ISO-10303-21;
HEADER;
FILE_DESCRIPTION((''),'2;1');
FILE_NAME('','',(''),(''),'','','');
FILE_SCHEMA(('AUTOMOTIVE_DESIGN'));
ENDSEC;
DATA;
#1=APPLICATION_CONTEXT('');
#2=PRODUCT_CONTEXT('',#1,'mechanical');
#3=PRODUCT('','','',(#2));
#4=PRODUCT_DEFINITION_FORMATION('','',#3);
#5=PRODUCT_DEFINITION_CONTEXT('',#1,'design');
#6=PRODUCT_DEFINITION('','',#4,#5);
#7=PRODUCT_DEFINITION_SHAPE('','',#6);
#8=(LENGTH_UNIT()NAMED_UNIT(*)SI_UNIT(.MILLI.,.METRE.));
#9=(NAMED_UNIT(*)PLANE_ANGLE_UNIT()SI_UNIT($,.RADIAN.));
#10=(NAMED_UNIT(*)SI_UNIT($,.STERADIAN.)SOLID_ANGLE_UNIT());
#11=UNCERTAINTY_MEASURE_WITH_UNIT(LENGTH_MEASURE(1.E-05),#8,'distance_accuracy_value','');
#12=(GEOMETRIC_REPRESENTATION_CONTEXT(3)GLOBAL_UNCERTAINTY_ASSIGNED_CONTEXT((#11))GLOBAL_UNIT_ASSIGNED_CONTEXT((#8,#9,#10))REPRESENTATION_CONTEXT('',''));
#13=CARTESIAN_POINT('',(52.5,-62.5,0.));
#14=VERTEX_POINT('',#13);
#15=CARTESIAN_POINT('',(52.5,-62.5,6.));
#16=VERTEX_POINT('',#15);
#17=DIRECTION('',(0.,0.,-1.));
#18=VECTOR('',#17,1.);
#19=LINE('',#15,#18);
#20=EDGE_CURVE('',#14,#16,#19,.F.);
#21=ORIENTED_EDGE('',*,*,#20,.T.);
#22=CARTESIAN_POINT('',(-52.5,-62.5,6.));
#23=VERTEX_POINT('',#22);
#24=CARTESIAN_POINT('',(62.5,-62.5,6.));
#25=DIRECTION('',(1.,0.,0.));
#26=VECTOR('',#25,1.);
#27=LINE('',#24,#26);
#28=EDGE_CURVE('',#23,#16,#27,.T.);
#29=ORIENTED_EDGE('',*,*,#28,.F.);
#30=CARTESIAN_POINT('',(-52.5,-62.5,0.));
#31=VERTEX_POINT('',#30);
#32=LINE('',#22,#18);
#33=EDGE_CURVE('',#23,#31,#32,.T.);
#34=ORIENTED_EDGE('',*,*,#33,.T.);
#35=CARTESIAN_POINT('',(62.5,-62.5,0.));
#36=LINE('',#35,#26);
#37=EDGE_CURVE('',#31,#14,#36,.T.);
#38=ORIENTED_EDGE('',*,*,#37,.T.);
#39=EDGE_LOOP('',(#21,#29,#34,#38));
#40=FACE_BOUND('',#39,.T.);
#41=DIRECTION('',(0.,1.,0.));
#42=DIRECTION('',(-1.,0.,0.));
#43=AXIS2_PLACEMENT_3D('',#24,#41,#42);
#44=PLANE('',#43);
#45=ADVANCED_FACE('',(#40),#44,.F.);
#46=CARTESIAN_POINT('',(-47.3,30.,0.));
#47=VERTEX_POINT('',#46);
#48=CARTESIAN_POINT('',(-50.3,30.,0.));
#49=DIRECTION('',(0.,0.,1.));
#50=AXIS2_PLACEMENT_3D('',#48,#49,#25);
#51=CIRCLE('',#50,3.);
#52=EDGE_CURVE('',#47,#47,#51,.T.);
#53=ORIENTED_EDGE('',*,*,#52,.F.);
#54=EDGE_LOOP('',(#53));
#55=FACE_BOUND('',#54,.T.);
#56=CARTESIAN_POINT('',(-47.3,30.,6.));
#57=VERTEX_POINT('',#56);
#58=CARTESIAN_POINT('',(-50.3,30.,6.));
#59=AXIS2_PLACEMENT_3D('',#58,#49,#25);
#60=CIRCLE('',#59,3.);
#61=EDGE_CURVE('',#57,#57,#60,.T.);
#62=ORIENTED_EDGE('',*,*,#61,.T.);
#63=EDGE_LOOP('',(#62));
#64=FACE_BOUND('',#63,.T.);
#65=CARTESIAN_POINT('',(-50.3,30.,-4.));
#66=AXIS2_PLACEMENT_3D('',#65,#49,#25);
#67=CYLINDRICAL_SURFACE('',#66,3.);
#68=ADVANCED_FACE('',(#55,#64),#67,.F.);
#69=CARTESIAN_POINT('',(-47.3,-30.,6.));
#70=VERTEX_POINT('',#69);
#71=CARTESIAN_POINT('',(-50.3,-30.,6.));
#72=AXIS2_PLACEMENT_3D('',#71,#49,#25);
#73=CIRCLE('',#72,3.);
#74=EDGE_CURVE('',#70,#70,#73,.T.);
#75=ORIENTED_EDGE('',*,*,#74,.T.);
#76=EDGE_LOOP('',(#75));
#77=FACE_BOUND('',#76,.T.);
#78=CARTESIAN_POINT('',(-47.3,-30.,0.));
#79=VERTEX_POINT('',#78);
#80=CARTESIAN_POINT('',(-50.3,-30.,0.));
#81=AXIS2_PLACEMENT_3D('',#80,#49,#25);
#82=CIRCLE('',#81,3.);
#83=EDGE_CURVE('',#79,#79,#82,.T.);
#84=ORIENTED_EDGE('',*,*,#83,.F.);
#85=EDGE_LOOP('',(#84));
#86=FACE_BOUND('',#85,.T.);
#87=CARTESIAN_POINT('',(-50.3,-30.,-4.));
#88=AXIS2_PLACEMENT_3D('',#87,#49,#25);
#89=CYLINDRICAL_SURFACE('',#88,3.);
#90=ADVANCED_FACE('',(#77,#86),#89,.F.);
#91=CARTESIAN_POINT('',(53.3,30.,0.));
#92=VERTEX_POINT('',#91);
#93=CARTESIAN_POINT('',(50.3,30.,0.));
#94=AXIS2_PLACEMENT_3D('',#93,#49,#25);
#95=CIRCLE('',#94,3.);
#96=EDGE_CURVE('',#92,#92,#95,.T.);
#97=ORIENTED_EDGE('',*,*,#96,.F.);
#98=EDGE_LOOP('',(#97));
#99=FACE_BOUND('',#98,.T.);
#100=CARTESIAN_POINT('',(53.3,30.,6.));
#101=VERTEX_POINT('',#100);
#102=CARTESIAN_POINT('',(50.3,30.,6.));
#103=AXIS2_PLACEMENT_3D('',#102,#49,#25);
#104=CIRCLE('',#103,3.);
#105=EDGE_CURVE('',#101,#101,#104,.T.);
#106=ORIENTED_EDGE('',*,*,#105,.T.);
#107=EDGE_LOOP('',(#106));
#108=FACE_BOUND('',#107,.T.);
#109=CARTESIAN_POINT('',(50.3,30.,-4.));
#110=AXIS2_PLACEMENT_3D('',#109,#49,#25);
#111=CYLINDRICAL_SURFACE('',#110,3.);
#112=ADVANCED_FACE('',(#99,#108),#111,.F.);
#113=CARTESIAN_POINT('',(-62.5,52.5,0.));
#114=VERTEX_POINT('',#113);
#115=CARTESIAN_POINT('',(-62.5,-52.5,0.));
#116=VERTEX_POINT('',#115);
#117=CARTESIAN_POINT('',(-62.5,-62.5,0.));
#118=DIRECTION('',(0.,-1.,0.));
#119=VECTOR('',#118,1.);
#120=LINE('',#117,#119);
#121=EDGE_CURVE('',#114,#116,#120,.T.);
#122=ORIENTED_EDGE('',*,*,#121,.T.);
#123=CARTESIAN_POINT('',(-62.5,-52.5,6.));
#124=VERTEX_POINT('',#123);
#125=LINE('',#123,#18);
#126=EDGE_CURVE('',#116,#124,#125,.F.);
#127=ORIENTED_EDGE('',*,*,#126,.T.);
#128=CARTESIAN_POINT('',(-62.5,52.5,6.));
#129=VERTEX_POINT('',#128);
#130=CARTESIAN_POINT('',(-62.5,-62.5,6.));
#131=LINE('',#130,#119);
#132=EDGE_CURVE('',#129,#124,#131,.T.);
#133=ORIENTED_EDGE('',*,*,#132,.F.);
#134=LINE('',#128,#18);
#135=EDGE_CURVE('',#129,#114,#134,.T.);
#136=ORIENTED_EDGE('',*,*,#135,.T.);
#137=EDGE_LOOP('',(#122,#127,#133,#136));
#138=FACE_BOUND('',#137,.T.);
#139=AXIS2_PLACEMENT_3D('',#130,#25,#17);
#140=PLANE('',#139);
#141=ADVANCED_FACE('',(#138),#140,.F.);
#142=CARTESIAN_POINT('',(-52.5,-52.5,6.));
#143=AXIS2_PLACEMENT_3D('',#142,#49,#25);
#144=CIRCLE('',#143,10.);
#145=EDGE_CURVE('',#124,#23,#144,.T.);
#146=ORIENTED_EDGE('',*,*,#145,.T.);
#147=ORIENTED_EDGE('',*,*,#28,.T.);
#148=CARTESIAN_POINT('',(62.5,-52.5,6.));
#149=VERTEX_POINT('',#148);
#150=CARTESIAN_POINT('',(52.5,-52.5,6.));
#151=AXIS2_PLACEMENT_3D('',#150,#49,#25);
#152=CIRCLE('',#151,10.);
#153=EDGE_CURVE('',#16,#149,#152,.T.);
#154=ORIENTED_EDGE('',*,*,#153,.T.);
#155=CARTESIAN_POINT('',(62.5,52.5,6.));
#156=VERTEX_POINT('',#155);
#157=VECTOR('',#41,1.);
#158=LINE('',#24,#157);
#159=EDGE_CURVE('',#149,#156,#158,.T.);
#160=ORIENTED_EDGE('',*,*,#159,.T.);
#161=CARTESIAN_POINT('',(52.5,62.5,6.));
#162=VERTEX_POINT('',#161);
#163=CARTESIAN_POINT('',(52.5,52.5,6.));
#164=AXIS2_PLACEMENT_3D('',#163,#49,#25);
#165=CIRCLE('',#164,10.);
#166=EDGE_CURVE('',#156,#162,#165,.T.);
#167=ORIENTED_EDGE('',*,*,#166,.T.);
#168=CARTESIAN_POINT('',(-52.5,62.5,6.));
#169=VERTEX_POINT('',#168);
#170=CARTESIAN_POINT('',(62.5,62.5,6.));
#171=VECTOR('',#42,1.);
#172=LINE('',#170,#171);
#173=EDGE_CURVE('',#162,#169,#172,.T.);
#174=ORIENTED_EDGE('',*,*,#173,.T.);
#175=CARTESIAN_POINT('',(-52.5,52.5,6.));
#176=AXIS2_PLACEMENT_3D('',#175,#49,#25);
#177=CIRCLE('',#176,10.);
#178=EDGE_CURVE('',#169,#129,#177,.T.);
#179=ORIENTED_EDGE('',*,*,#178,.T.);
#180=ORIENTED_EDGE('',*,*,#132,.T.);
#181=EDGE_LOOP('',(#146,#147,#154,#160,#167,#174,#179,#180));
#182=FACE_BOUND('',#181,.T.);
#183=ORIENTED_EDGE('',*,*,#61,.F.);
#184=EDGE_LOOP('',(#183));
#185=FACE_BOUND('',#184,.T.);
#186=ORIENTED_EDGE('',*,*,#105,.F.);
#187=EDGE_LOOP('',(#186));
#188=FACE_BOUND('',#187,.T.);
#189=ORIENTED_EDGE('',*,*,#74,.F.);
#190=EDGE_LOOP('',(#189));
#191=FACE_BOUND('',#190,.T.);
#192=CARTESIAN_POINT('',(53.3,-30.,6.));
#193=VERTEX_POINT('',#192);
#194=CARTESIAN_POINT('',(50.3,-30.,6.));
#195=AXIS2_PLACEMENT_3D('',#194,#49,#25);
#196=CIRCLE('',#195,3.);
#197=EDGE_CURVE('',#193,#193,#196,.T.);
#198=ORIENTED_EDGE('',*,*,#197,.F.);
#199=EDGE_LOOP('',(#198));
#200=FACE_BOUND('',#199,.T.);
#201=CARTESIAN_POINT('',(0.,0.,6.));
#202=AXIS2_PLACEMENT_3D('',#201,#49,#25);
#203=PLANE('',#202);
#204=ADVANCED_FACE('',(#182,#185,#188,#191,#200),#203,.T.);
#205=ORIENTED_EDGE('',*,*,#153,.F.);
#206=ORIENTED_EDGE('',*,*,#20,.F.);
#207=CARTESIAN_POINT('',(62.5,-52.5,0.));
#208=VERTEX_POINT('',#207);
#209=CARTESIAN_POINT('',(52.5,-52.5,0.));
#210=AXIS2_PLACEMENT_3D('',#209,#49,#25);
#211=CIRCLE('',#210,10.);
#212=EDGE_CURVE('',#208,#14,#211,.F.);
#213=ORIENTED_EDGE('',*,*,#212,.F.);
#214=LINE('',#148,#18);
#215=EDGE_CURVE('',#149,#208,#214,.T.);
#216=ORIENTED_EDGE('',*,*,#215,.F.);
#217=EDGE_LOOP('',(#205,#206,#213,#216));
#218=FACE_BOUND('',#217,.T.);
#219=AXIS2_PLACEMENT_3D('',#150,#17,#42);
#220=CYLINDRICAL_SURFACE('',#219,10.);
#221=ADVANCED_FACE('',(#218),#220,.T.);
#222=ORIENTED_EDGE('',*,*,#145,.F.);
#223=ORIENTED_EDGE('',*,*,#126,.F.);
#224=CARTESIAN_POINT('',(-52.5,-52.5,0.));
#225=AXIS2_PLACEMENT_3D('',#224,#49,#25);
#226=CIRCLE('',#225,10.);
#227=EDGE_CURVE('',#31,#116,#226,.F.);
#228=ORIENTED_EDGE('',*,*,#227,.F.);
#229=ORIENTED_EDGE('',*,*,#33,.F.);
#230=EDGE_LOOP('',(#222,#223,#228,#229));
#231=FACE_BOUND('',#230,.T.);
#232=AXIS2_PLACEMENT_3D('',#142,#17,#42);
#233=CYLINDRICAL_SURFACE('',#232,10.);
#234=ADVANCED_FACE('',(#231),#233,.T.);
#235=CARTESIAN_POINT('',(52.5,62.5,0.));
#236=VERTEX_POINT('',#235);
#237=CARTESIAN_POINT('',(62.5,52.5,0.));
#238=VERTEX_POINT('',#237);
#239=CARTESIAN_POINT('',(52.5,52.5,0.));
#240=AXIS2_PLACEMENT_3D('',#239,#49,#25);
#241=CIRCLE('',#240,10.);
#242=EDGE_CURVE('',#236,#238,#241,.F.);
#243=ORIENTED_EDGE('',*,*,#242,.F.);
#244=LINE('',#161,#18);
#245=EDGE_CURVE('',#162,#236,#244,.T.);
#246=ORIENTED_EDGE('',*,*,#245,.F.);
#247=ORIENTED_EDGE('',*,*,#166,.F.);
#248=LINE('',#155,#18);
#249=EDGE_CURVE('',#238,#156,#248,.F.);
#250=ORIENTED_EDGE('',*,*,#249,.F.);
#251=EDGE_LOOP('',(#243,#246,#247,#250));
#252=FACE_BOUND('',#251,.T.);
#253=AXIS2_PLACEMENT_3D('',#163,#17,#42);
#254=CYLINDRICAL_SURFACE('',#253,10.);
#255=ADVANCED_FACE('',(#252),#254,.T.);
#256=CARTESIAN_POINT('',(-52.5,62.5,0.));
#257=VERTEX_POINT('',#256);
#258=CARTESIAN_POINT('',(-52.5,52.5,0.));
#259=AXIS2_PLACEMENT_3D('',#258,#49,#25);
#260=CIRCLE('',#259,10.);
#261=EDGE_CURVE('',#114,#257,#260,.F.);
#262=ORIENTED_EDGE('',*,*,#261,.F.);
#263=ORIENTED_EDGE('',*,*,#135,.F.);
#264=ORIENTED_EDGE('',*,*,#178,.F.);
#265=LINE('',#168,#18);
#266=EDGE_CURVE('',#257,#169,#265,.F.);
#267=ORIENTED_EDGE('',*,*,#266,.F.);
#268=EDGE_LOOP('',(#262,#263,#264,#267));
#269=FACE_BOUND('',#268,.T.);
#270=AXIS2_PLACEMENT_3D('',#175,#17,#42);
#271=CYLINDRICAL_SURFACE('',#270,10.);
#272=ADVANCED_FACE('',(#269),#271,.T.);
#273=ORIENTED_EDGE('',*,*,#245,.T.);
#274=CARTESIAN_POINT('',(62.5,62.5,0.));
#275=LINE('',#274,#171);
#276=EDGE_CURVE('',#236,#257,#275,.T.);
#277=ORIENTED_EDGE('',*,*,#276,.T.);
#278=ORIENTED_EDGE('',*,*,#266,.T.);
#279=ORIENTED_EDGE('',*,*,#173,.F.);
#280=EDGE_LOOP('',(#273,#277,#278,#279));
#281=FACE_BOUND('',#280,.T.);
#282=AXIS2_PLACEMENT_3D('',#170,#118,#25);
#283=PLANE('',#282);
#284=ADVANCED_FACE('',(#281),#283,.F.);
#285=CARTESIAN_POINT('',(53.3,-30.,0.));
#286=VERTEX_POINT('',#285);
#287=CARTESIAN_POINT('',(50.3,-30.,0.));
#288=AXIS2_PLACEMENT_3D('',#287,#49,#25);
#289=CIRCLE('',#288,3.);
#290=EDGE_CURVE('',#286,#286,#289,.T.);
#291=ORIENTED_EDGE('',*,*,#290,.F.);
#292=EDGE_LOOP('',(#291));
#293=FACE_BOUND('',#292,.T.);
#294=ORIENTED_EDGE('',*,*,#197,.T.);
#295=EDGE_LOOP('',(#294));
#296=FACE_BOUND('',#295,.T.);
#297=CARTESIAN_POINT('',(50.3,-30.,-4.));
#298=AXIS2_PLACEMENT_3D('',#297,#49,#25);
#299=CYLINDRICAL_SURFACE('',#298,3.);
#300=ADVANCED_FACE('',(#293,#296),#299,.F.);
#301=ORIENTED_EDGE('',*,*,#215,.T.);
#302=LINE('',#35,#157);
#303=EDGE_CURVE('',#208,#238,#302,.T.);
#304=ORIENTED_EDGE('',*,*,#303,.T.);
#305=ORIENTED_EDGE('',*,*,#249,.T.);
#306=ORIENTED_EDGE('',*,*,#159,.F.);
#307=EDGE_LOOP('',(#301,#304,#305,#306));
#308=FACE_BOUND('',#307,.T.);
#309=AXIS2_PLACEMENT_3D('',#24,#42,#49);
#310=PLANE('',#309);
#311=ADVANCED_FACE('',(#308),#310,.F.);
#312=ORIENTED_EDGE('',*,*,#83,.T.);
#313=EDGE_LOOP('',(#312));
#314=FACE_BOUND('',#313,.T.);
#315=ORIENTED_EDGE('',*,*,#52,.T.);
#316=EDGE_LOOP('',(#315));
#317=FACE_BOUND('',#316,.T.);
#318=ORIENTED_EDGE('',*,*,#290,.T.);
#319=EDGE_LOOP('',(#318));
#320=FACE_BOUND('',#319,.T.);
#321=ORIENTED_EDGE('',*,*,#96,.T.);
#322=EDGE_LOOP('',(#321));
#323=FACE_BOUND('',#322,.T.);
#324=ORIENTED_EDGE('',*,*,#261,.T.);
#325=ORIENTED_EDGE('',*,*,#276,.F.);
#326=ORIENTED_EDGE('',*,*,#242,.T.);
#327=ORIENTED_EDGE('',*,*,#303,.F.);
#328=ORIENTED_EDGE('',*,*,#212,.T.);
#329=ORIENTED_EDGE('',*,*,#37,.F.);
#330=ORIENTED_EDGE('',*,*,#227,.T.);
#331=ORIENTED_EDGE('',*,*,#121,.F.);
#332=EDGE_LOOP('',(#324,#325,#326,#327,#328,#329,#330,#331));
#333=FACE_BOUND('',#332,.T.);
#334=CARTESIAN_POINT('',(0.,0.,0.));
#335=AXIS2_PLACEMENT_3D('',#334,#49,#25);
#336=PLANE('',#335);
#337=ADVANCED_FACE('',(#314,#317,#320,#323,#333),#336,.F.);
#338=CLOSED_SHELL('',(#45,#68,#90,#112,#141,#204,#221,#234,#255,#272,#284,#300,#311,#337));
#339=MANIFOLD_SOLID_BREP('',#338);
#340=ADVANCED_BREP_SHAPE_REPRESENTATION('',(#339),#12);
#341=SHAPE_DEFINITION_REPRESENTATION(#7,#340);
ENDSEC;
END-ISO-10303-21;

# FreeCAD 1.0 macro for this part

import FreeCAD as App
import Part
import Sketcher


def edges_at(feature, points):
    """Names of the edges that pass closest to the given points."""
    edges = feature.Shape.Edges
    near = lambda p: min(range(len(edges)), key=lambda i: edges[i].distToShape(Part.Vertex(*p))[0])
    return sorted({f"Edge{near(p) + 1}" for p in points})


def add_polygon(sketch, points):
    """Adds a closed chain of lines whose ends are joined by coincident constraints."""
    first, n = sketch.GeometryCount, len(points)
    for a, b in zip(points, points[1:] + points[:1]):
        sketch.addGeometry(Part.LineSegment(App.Vector(*a, 0), App.Vector(*b, 0)), False)
    for i in range(n):
        sketch.addConstraint(Sketcher.Constraint("Coincident", first + i, 2, first + (i + 1) % n, 1))

doc = App.newDocument("Part")
body = doc.addObject("PartDesign::Body", "Body")

# Sketch on XY plane
sketch1 = doc.addObject("Sketcher::SketchObject", "Sketch")
body.addObject(sketch1)
sketch1.AttachmentSupport = (doc.XY_Plane, [""])
sketch1.MapMode = "FlatFace"
add_polygon(sketch1, [(-62, 62), (-62, -62), (62, -62), (62, 62)])  # lines 0-3
sketch1.addConstraint([
    Sketcher.Constraint("Vertical", 0),
    Sketcher.Constraint("Horizontal", 1),
    Sketcher.Constraint("Vertical", 2),
    Sketcher.Constraint("Horizontal", 3),
    Sketcher.Constraint("Symmetric", 0, 2, 2, 2, -1, 1),
    Sketcher.Constraint("Equal", 3, 0),
    Sketcher.Constraint("DistanceX", 1, 1, 1, 2, 125.0),
])
pad1 = doc.addObject("PartDesign::Pad", "Pad")
body.addObject(pad1)
pad1.Profile = sketch1
pad1.Length = 6
doc.recompute()

fillet = doc.addObject("PartDesign::Fillet", "Fillet")
body.addObject(fillet)
fillet.Base = (pad1, edges_at(pad1, [
    (-62.5, 62.5, 3),
    (62.5, 62.5, 3),
    (62.5, -62.5, 3),
    (-62.5, -62.5, 3),
]))
fillet.Radius = 10

# Sketch on XY plane
sketch2 = doc.addObject("Sketcher::SketchObject", "Sketch001")
body.addObject(sketch2)
sketch2.AttachmentSupport = (doc.XY_Plane, [""])
sketch2.MapMode = "FlatFace"
sketch2.AttachmentOffset = App.Placement(App.Vector(0, 0, 6), App.Rotation())
sketch2.addGeometry([
    Part.Circle(App.Vector(50.3, 30, 0), App.Vector(0, 0, 1), 3),
    Part.Circle(App.Vector(50.3, -30, 0), App.Vector(0, 0, 1), 3),
    Part.Circle(App.Vector(-50.3, 30, 0), App.Vector(0, 0, 1), 3),
    Part.Circle(App.Vector(-50.3, -30, 0), App.Vector(0, 0, 1), 3),
], False)
sketch2.addConstraint([
    Sketcher.Constraint("Equal", 0, 1),
    Sketcher.Constraint("Equal", 1, 2),
    Sketcher.Constraint("Equal", 2, 3),
    Sketcher.Constraint("Symmetric", 1, 3, 2, 3, -1, 1),
    Sketcher.Constraint("Symmetric", 0, 3, 3, 3, -1, 1),
    Sketcher.Constraint("Symmetric", 0, 3, 2, 3, -2),
    Sketcher.Constraint("Diameter", 0, 6.0),
    Sketcher.Constraint("DistanceY", -1, 1, 0, 3, 30.0),
    Sketcher.Constraint("DistanceX", -1, 1, 0, 3, 50.3),
])
pocket1 = doc.addObject("PartDesign::Pocket", "Pocket")
body.addObject(pocket1)
pocket1.Profile = sketch2
pocket1.Length = 10

doc.recompute()
